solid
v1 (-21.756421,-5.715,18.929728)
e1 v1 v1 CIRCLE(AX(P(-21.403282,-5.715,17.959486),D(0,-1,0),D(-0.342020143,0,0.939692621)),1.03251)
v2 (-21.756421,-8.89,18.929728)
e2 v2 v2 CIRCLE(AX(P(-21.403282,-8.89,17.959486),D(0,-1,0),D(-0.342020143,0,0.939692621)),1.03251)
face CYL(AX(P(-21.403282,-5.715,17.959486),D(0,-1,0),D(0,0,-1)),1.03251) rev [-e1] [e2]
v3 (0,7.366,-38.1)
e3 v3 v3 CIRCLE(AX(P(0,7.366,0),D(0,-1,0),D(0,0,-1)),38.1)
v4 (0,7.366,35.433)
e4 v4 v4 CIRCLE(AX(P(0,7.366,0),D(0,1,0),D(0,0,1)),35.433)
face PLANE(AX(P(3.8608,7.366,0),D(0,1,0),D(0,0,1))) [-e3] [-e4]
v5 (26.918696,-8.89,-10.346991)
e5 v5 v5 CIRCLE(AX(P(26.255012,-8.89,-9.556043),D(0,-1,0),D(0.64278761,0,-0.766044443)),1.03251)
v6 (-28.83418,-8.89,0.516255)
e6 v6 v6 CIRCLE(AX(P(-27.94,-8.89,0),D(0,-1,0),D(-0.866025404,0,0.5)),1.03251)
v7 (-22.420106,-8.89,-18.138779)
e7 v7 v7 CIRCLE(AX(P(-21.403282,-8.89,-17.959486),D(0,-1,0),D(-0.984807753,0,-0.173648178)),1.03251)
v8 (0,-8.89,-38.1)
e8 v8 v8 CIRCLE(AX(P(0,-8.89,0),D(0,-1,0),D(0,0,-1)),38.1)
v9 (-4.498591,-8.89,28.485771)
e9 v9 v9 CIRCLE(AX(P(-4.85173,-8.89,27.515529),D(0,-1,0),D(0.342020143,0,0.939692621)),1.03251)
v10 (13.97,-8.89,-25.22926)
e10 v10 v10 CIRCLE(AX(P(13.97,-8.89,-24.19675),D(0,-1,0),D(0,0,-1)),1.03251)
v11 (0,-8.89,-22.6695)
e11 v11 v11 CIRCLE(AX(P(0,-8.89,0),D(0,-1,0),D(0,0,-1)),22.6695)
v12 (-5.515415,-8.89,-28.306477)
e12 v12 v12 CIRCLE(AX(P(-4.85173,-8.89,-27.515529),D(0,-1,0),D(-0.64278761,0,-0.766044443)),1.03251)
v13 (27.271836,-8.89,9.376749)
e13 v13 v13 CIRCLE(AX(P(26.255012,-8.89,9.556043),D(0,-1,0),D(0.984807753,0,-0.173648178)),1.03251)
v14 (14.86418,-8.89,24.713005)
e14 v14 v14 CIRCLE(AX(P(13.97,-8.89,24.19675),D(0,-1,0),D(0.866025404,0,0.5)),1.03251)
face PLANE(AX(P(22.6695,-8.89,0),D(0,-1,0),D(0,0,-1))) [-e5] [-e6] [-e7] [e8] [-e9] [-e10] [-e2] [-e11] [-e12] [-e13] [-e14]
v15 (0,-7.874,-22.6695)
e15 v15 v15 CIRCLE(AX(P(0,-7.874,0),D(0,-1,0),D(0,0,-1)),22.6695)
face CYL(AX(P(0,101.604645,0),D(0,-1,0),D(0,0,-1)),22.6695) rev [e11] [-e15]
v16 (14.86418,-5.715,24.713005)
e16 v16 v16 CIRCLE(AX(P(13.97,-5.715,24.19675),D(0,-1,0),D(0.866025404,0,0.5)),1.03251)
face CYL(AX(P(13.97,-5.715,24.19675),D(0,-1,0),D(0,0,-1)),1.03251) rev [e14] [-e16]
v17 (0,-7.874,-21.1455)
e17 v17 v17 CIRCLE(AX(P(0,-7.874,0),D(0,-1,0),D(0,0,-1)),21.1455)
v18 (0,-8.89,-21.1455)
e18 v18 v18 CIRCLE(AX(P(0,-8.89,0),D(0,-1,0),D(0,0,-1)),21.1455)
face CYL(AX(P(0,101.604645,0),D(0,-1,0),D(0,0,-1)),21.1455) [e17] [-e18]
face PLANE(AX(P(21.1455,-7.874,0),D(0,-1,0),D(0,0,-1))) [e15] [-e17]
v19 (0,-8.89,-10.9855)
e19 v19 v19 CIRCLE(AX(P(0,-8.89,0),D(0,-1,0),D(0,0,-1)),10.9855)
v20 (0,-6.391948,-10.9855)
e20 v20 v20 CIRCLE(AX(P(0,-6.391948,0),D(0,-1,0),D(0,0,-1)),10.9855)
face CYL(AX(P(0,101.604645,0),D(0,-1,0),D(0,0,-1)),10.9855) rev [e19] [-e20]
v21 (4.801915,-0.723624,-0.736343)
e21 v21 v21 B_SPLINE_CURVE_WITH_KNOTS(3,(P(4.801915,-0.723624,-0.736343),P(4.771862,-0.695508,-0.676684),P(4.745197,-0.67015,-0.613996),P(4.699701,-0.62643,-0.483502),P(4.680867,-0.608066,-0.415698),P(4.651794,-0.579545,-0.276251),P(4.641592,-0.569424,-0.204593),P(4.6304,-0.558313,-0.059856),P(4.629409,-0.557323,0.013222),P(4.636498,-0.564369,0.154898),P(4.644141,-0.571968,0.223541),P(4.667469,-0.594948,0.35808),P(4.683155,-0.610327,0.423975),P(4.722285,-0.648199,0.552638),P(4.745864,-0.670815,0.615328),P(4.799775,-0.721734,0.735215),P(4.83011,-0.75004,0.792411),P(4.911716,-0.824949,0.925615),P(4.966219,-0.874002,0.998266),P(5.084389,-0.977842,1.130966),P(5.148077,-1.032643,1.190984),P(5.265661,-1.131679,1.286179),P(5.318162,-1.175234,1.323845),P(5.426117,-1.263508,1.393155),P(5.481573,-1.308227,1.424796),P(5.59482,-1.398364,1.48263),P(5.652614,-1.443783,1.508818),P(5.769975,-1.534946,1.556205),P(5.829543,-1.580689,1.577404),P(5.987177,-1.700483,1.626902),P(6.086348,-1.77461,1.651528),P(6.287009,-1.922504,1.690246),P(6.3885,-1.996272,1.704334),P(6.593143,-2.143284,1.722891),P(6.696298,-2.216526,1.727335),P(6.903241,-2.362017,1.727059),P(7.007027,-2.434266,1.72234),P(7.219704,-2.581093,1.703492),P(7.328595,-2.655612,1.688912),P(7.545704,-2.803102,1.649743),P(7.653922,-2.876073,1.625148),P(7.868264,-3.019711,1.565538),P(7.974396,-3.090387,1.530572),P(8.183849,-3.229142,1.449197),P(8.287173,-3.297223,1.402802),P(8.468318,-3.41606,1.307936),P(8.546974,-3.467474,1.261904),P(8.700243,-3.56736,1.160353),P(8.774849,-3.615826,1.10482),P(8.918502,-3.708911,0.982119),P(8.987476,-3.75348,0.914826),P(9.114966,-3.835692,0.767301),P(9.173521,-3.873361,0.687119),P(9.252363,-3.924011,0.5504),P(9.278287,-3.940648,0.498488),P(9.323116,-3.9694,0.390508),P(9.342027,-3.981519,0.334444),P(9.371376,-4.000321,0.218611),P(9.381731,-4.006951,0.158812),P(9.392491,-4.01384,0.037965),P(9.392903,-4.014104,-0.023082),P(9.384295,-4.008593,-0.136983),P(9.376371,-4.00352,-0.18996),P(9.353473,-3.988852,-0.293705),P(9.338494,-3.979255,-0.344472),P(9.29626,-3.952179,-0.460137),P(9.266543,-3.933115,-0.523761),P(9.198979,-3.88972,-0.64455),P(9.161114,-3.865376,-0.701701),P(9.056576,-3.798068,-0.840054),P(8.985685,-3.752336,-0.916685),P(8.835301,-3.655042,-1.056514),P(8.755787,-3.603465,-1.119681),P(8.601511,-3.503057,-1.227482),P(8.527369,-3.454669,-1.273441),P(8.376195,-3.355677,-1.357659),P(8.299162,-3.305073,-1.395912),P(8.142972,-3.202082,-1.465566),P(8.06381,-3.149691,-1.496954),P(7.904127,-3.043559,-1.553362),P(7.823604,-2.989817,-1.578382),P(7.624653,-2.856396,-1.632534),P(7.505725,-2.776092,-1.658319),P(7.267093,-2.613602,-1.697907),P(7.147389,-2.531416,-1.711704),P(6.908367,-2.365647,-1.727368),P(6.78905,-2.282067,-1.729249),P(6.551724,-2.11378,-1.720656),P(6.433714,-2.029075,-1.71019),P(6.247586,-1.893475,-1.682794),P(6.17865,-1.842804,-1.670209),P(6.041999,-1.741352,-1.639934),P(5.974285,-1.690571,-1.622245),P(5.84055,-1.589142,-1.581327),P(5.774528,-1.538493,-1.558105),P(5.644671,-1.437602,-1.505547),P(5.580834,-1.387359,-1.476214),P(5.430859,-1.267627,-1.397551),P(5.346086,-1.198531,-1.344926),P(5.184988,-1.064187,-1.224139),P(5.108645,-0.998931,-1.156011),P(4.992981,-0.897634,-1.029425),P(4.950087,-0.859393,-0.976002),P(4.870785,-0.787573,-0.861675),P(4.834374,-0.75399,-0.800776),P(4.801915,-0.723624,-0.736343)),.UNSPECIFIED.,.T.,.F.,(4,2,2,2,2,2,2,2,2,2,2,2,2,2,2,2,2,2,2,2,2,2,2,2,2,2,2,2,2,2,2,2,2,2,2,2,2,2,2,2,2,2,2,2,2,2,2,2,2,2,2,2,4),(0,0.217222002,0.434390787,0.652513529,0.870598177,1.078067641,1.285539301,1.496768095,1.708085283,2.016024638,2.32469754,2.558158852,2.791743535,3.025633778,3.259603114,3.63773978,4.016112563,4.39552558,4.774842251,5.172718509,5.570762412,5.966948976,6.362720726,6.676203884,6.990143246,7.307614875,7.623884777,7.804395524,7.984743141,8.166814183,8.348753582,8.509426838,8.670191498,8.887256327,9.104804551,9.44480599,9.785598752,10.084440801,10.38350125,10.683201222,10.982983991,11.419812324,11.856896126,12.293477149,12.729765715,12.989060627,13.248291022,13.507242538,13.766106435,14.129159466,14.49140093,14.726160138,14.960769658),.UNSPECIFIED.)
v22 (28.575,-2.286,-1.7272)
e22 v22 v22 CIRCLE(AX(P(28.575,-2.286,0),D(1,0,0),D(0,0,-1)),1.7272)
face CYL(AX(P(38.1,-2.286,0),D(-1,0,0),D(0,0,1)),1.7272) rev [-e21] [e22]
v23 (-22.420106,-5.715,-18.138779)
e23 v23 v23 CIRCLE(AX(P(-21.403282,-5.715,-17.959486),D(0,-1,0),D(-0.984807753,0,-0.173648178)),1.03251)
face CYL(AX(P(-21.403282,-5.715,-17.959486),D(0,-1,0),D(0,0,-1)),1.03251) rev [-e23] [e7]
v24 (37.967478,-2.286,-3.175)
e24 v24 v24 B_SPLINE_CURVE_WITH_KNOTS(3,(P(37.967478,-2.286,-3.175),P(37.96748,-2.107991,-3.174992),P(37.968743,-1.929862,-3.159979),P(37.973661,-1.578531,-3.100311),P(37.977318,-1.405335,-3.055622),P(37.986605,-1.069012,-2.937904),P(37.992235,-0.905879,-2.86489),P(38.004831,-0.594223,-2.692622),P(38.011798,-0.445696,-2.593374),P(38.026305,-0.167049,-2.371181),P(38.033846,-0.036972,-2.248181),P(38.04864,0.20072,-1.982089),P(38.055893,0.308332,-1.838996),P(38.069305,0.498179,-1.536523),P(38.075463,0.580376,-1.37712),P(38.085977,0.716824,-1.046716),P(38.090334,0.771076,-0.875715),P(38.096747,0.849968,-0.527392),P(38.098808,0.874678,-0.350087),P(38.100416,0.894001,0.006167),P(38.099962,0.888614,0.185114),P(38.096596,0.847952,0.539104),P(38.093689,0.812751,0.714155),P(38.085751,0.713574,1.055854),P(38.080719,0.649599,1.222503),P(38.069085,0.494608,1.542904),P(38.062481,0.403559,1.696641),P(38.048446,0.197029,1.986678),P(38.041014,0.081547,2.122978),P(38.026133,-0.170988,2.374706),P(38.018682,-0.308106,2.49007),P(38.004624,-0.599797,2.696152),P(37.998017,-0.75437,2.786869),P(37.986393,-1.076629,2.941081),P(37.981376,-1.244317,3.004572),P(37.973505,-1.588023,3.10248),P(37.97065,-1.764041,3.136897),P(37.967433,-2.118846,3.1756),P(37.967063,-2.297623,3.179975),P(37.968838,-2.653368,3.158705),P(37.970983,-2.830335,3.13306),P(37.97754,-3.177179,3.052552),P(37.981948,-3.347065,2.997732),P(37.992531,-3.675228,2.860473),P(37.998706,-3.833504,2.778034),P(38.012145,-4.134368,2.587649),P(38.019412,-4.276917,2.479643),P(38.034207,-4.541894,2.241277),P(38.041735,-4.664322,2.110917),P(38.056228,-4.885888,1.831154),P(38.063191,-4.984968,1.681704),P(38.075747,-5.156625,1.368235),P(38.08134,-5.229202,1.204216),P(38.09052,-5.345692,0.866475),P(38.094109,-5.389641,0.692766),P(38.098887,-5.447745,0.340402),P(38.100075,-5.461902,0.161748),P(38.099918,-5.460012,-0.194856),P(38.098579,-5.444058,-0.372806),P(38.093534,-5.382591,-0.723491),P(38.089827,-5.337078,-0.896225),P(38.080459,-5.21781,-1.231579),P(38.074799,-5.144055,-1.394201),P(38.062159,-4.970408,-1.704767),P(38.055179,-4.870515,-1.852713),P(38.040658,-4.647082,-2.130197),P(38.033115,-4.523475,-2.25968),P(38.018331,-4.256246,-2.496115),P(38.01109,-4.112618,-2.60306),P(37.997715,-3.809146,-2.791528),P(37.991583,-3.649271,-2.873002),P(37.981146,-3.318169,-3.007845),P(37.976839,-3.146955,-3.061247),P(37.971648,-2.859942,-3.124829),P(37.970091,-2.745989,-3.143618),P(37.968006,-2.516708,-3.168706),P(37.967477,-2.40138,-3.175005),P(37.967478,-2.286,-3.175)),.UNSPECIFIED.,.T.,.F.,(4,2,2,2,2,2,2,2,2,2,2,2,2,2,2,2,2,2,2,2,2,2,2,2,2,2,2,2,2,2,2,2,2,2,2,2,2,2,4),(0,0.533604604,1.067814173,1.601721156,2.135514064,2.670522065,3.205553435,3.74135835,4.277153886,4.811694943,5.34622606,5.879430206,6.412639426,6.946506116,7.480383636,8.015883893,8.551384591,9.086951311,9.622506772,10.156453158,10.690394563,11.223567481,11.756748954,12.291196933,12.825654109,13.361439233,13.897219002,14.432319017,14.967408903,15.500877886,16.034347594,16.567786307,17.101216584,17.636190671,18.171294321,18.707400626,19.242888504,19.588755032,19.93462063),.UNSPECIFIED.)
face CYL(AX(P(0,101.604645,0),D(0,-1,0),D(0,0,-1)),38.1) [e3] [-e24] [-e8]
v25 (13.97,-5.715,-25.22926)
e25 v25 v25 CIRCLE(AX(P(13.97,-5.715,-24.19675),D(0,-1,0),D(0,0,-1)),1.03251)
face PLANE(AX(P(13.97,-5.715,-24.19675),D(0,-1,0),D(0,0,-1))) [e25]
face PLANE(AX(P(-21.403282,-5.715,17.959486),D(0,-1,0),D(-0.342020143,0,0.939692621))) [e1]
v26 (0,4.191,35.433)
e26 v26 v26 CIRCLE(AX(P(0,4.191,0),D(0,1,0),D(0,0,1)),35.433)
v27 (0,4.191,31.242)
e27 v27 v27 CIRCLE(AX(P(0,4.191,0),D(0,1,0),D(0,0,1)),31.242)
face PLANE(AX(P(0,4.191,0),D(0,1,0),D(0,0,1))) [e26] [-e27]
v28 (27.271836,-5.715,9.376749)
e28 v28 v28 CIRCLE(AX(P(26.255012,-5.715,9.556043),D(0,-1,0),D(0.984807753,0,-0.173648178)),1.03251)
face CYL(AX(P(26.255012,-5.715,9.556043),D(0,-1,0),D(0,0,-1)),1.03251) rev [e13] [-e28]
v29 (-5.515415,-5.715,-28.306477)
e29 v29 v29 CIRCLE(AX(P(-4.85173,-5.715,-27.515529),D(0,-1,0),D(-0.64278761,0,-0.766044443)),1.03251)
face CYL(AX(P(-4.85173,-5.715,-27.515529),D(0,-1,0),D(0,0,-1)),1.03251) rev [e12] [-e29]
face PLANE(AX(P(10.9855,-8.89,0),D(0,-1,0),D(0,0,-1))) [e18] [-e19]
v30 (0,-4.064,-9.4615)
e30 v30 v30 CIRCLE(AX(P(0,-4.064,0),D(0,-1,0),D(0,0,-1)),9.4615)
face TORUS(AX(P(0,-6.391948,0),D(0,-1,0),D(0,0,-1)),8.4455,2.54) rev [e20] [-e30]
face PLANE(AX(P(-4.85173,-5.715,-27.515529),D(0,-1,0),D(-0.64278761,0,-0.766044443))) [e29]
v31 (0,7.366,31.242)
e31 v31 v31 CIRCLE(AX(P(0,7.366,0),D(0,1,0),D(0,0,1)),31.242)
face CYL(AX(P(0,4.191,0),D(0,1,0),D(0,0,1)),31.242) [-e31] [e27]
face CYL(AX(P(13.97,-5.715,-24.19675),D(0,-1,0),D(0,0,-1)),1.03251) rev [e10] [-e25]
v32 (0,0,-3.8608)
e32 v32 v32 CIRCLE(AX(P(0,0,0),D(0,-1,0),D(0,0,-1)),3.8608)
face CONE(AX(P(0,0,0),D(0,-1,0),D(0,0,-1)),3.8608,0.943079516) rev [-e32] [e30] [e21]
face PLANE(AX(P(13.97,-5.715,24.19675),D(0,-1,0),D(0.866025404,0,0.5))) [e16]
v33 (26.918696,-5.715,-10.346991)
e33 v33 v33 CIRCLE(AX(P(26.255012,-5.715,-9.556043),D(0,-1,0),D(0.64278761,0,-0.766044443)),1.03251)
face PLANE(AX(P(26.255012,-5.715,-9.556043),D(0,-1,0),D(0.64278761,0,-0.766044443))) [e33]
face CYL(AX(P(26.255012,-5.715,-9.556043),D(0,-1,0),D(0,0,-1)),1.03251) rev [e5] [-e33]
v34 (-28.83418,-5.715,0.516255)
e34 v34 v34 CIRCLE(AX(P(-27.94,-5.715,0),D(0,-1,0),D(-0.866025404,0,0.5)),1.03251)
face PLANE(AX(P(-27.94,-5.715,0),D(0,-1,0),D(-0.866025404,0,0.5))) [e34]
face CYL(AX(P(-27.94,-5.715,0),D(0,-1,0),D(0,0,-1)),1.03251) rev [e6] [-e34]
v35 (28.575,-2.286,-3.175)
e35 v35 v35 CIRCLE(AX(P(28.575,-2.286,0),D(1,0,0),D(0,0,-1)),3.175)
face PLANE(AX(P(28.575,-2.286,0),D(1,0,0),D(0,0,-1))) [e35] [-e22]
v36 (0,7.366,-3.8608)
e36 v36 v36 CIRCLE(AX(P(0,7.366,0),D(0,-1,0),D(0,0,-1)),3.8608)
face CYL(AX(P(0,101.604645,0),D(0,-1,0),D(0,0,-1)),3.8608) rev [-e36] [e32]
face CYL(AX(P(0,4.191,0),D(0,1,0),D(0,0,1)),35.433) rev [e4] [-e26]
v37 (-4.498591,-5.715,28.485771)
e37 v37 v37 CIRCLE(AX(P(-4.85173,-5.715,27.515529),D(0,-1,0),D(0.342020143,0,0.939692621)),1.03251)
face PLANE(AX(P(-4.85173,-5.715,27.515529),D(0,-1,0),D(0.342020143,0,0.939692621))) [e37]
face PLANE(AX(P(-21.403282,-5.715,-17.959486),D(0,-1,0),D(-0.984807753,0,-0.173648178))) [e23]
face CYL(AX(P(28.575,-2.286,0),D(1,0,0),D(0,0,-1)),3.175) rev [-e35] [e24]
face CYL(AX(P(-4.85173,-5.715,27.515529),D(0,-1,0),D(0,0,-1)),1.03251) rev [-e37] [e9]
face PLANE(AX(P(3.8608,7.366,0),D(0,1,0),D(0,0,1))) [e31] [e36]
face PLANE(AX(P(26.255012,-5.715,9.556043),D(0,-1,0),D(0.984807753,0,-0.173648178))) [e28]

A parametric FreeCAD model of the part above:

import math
import FreeCAD as App
import Part
import Sketcher

V = App.Vector
Q = App.Units.Quantity

doc = App.newDocument("Part")
body = doc.addObject("PartDesign::Body", "Body")

# Sketch on XY plane
sketch1 = body.newObject("Sketcher::SketchObject", "Sketch")
sketch1.AttachmentSupport = (doc.getObject("XY_Plane"), [""])
sketch1.MapMode = "FlatFace"
sketch1.addGeometry([
    Part.LineSegment(V(38.1, 7.4, 0), V(3.9, 7.4, 0)),  # 0
    Part.LineSegment(V(3.9, 7.4, 0), V(3.9, 0, 0)),  # 1
    Part.LineSegment(V(3.9, 0, 0), V(9.5, -4.1, 0)),  # 2
    Part.ArcOfCircle(Part.Circle(V(8.4, -6.4, 0), V(0, 0, 1), 2.5), math.radians(0), math.radians(66)),  # 3
    Part.LineSegment(V(11, -6.4, 0), V(11, -8.9, 0)),  # 4
    Part.LineSegment(V(11, -8.9, 0), V(21.1, -8.9, 0)),  # 5
    Part.LineSegment(V(21.1, -8.9, 0), V(21.1, -7.9, 0)),  # 6
    Part.LineSegment(V(21.1, -7.9, 0), V(22.7, -7.9, 0)),  # 7
    Part.LineSegment(V(22.7, -7.9, 0), V(22.7, -8.9, 0)),  # 8
    Part.LineSegment(V(22.7, -8.9, 0), V(38.1, -8.9, 0)),  # 9
    Part.LineSegment(V(38.1, -8.9, 0), V(38.1, 7.4, 0)),  # 10
], False)
sketch1.addConstraint([
    Sketcher.Constraint("Coincident", 0, 2, 1, 1),
    Sketcher.Constraint("Coincident", 1, 2, 2, 1),
    Sketcher.Constraint("Coincident", 2, 2, 3, 2),
    Sketcher.Constraint("Tangent", 3, 1, 4, 1),
    Sketcher.Constraint("Coincident", 4, 2, 5, 1),
    Sketcher.Constraint("Coincident", 5, 2, 6, 1),
    Sketcher.Constraint("Coincident", 6, 2, 7, 1),
    Sketcher.Constraint("Coincident", 7, 2, 8, 1),
    Sketcher.Constraint("Coincident", 8, 2, 9, 1),
    Sketcher.Constraint("Coincident", 9, 2, 10, 1),
    Sketcher.Constraint("Coincident", 10, 2, 0, 1),
    Sketcher.Constraint("Horizontal", 0),
    Sketcher.Constraint("Vertical", 1),
    Sketcher.Constraint("Vertical", 4),
    Sketcher.Constraint("Horizontal", 5),
    Sketcher.Constraint("Vertical", 6),
    Sketcher.Constraint("Horizontal", 7),
    Sketcher.Constraint("Vertical", 8),
    Sketcher.Constraint("Horizontal", 9),
    Sketcher.Constraint("Vertical", 10),
    Sketcher.Constraint("PointOnObject", 1, 2, -1),
    Sketcher.Constraint("Horizontal", 5, 2, 8, 2),
    Sketcher.Constraint("Radius", 3, Q("0.1 in")),
    Sketcher.Constraint("DistanceX", 5, 1, 5, 2, Q("0.4 in")),
    Sketcher.Constraint("DistanceX", 7, 1, 7, 2, Q("0.06 in")),
    Sketcher.Constraint("DistanceY", 1, 2, 1, 1, Q("0.29 in")),
    Sketcher.Constraint("DistanceY", 6, 1, 6, 2, Q("0.04 in")),
    Sketcher.Constraint("DistanceY", 10, 1, 10, 2, Q("0.64 in")),
    Sketcher.Constraint("DistanceX", -1, 1, 9, 2, Q("1.5 in")),
    Sketcher.Constraint("DistanceX", 0, 2, 0, 1, Q("1.348 in")),
    Sketcher.Constraint("DistanceY", 2, 2, -1, 1, Q("0.16 in")),
    Sketcher.Constraint("DistanceX", 3, 3, 2, 2, Q("0.04 in")),
    Sketcher.Constraint("DistanceX", 9, 1, 9, 2, Q("0.6075 in")),
])
revolution = body.newObject("PartDesign::Revolution", "Revolution")
revolution.Profile = sketch1
revolution.ReferenceAxis = (sketch1, ["V_Axis"])
revolution.Angle = 360

# Sketch on YZ plane
sketch2 = body.newObject("Sketcher::SketchObject", "Sketch001")
sketch2.AttachmentSupport = (doc.getObject("YZ_Plane"), [""])
sketch2.MapMode = "FlatFace"
sketch2.addGeometry(Part.Circle(V(-2.3, 0, 0), V(0, 0, 1), 1.7), False)
sketch2.addConstraint([
    Sketcher.Constraint("PointOnObject", 0, 3, -1),
    Sketcher.Constraint("Diameter", 0, Q("0.136 in")),
    Sketcher.Constraint("DistanceX", 0, 3, -1, 1, Q("0.09 in")),
])
pocket1 = body.newObject("PartDesign::Pocket", "Pocket")
pocket1.Profile = sketch2
pocket1.Type = "ThroughAll"
pocket1.Reversed = True

# Sketch on XZ plane
sketch3 = body.newObject("Sketcher::SketchObject", "Sketch002")
sketch3.AttachmentSupport = (doc.getObject("XZ_Plane"), [""])
sketch3.MapMode = "FlatFace"
sketch3.AttachmentOffset = App.Placement(V(0, 0, -0.29 * 25.4), App.Rotation())
sketch3.addGeometry([
    Part.Circle(V(0, 0, 0), V(0, 0, 1), 35),
    Part.Circle(V(0, 0, 0), V(0, 0, 1), 31),
], False)
sketch3.addConstraint([
    Sketcher.Constraint("Coincident", 0, 3, -1, 1),
    Sketcher.Constraint("Coincident", 1, 3, -1, 1),
    Sketcher.Constraint("Diameter", 0, Q("2.79 in")),
    Sketcher.Constraint("Diameter", 1, Q("2.46 in")),
])
pocket2 = body.newObject("PartDesign::Pocket", "Pocket001")
pocket2.Profile = sketch3
pocket2.Length = Q("0.125 in")
pocket2.Reversed = True

# Sketch on XZ plane
sketch4 = body.newObject("Sketcher::SketchObject", "Sketch003")
sketch4.AttachmentSupport = (doc.getObject("XZ_Plane"), [""])
sketch4.MapMode = "FlatFace"
sketch4.AttachmentOffset = App.Placement(V(0, 0, 0.35 * 25.4), App.Rotation())
sketch4.addGeometry(Part.Circle(V(14, -24.2, 0), V(0, 0, 1), 1), False)
sketch4.addConstraint([
    Sketcher.Constraint("Diameter", 0, Q("0.0813 in")),
    Sketcher.Constraint("DistanceX", -1, 1, 0, 3, Q("0.55 in")),
    Sketcher.Constraint("DistanceY", 0, 3, -1, 1, 24.19675),
])
pocket3 = body.newObject("PartDesign::Pocket", "Pocket002")
pocket3.Profile = sketch4
pocket3.Length = Q("0.125 in")
doc.recompute()

polarpattern = body.newObject("PartDesign::PolarPattern", "PolarPattern")
polarpattern.Originals = [pocket3]
polarpattern.Axis = (doc.getObject("Y_Axis"), [""])
polarpattern.Angle = 360
polarpattern.Occurrences = 9
body.Tip = polarpattern

# Sketch on YZ plane
sketch5 = body.newObject("Sketcher::SketchObject", "Sketch004")
sketch5.AttachmentSupport = (doc.getObject("YZ_Plane"), [""])
sketch5.MapMode = "FlatFace"
sketch5.AttachmentOffset = App.Placement(V(0, 0, 1.5 * 25.4), App.Rotation())
sketch5.addGeometry(Part.Circle(V(-2.3, 0, 0), V(0, 0, 1), 3.2), False)
sketch5.addConstraint([
    Sketcher.Constraint("PointOnObject", 0, 3, -1),
    Sketcher.Constraint("Diameter", 0, Q("0.25 in")),
    Sketcher.Constraint("DistanceX", 0, 3, -1, 1, Q("0.09 in")),
])
pocket4 = body.newObject("PartDesign::Pocket", "Pocket003")
pocket4.Profile = sketch5
pocket4.Length = Q("0.375 in")

doc.recompute()
